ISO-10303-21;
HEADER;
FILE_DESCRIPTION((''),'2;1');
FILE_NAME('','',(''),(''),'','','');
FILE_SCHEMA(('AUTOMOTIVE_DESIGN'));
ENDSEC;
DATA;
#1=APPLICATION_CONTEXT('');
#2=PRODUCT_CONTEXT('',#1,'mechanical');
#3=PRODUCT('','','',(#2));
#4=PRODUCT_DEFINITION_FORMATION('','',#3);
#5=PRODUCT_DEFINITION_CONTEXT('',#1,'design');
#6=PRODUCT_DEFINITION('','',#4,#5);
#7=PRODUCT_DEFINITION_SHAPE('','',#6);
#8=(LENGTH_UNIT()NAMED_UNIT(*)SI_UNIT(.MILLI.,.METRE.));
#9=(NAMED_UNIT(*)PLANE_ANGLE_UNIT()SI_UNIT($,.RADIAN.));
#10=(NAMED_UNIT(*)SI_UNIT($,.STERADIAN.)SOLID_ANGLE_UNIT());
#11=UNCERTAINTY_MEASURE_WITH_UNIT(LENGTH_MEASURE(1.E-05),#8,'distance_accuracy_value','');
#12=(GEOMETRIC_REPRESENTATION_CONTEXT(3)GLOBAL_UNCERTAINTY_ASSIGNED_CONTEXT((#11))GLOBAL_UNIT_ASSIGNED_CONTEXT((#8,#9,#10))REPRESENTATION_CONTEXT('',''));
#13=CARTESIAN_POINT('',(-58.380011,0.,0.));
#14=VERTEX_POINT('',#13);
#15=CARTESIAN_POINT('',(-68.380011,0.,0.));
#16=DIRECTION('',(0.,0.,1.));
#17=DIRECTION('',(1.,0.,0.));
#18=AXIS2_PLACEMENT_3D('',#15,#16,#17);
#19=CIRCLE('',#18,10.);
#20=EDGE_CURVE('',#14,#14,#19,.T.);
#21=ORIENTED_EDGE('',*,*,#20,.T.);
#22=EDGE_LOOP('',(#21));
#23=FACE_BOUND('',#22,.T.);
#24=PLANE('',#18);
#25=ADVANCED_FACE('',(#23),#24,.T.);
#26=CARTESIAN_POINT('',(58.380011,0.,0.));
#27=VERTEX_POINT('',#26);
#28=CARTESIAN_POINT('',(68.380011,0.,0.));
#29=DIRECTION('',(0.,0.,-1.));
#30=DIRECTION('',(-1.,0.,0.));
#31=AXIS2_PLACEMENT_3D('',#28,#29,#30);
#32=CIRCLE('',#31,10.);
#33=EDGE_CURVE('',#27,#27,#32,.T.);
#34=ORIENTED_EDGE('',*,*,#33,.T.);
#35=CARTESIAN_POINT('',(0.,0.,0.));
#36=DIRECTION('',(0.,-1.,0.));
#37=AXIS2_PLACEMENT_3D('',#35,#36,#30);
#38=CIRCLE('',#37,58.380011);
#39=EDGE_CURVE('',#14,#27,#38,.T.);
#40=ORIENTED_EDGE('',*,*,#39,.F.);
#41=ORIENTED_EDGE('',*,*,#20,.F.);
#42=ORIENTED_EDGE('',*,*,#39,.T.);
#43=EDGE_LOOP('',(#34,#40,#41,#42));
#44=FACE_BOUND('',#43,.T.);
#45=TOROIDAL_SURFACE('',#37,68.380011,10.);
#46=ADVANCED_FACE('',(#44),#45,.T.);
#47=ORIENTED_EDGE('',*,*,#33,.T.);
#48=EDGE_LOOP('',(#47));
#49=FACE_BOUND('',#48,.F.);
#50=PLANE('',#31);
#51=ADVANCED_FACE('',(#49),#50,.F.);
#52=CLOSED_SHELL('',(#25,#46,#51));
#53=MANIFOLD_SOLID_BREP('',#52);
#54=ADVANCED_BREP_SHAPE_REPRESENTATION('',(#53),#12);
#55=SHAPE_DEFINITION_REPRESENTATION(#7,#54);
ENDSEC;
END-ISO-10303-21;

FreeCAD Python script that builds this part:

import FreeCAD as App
import Part
import Sketcher

doc = App.newDocument("Part")
body = doc.addObject("PartDesign::Body", "Body")

# Sketch on XY plane
sketch1 = doc.addObject("Sketcher::SketchObject", "Sketch")
body.addObject(sketch1)
sketch1.AttachmentSupport = (doc.XY_Plane, [""])
sketch1.MapMode = "FlatFace"
sketch1.addGeometry(Part.Circle(App.Vector(-68.380011, 0, 0), App.Vector(0, 0, 1), 10), False)
sketch1.addConstraint([
    Sketcher.Constraint("PointOnObject", 0, 3, -1),
    Sketcher.Constraint("Diameter", 0, 20.0),
    Sketcher.Constraint("DistanceX", 0, 3, -1, 1, 68.380011),
])
revolution = doc.addObject("PartDesign::Revolution", "Revolution")
body.addObject(revolution)
revolution.Profile = sketch1
revolution.ReferenceAxis = (sketch1, ["V_Axis"])
revolution.Angle = 180
revolution.Reversed = True

doc.recompute()
